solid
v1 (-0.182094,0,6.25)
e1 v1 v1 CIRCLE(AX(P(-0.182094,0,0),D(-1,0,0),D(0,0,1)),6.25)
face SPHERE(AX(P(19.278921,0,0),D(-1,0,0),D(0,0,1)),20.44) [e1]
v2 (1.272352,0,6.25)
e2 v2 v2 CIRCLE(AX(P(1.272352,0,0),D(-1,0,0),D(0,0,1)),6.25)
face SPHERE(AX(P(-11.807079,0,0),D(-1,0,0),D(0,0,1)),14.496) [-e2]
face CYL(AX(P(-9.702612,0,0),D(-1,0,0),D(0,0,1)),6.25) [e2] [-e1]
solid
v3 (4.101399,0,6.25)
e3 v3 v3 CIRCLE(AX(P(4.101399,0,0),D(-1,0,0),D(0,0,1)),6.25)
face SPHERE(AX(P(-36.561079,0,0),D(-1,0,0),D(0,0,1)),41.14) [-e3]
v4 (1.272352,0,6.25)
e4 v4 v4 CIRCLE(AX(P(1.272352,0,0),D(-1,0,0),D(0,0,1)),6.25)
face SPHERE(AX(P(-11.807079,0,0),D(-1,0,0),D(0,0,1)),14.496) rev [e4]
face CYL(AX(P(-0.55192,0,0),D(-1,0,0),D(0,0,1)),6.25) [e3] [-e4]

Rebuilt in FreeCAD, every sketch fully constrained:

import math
import FreeCAD as App
import Part
import Sketcher

V = App.Vector

doc = App.newDocument("Part")
body = doc.addObject("PartDesign::Body", "Body")

sketch1 = body.newObject("Sketcher::SketchObject", "Sketch")
sketch1.AttachmentSupport = (doc.getObject("XZ_Plane"), [""])
sketch1.MapMode = "FlatFace"
sketch1.addGeometry([
    Part.ArcOfCircle(Part.Circle(V(19.3, 0, 0), V(0, 0, 1), 20.4), math.radians(180), math.radians(197.8)),
    Part.LineSegment(V(-1.2, 0, 0), V(2.7, 0, 0)),
    Part.ArcOfCircle(Part.Circle(V(-11.8, 0, 0), V(0, 0, 1), 14.5), math.radians(-26), math.radians(0)),
    Part.LineSegment(V(1.3, -6.2, 0), V(-0.2, -6.2, 0)),
], False)
sketch1.addConstraint([
    Sketcher.Constraint("Coincident", 0, 1, 1, 1),
    Sketcher.Constraint("Coincident", 1, 2, 2, 2),
    Sketcher.Constraint("Coincident", 2, 1, 3, 1),
    Sketcher.Constraint("Coincident", 3, 2, 0, 2),
    Sketcher.Constraint("Horizontal", 1),
    Sketcher.Constraint("Horizontal", 3),
    Sketcher.Constraint("PointOnObject", 0, 3, -1),
    Sketcher.Constraint("PointOnObject", 2, 3, -1),
    Sketcher.Constraint("PointOnObject", 0, 1, -1),
    Sketcher.Constraint("Radius", 0, 20.44),
    Sketcher.Constraint("Radius", 2, 14.496),
    Sketcher.Constraint("DistanceX", 1, 1, 1, 2, 3.85),
    Sketcher.Constraint("DistanceY", 2, 1, -1, 1, 6.25),
    Sketcher.Constraint("DistanceX", -1, 1, 0, 3, 19.278921),
])
revolution = body.newObject("PartDesign::Revolution", "Revolution")
revolution.Profile = sketch1
revolution.ReferenceAxis = (sketch1, ["H_Axis"])
revolution.Angle = 360
body2 = doc.addObject("PartDesign::Body", "Body001")

sketch2 = body2.newObject("Sketcher::SketchObject", "Sketch001")
sketch2.AttachmentSupport = (doc.getObject("XZ_Plane001"), [""])
sketch2.MapMode = "FlatFace"
sketch2.addGeometry([
    Part.LineSegment(V(4.1, -6.2, 0), V(1.3, -6.2, 0)),
    Part.ArcOfCircle(Part.Circle(V(-11.8, 0, 0), V(0, 0, 1), 14.5), math.radians(-26), math.radians(0)),
    Part.LineSegment(V(2.7, 0, 0), V(4.6, 0, 0)),
    Part.ArcOfCircle(Part.Circle(V(-36.6, 0, 0), V(0, 0, 1), 41.1), math.radians(-8.74), math.radians(0)),
], False)
sketch2.addConstraint([
    Sketcher.Constraint("Coincident", 0, 2, 1, 1),
    Sketcher.Constraint("Coincident", 1, 2, 2, 1),
    Sketcher.Constraint("Coincident", 2, 2, 3, 2),
    Sketcher.Constraint("Coincident", 3, 1, 0, 1),
    Sketcher.Constraint("Horizontal", 0),
    Sketcher.Constraint("Horizontal", 2),
    Sketcher.Constraint("PointOnObject", 1, 3, -1),
    Sketcher.Constraint("PointOnObject", 3, 3, -1),
    Sketcher.Constraint("PointOnObject", 1, 2, -1),
    Sketcher.Constraint("Radius", 3, 41.14),
    Sketcher.Constraint("Radius", 1, 14.496),
    Sketcher.Constraint("DistanceX", 2, 1, 2, 2, 1.89),
    Sketcher.Constraint("DistanceY", 0, 2, -1, 1, 6.25),
    Sketcher.Constraint("DistanceX", -1, 1, 3, 1, 4.101399),
])
revolution2 = body2.newObject("PartDesign::Revolution", "Revolution001")
revolution2.Profile = sketch2
revolution2.ReferenceAxis = (sketch2, ["H_Axis"])
revolution2.Angle = 360

doc.recompute()
